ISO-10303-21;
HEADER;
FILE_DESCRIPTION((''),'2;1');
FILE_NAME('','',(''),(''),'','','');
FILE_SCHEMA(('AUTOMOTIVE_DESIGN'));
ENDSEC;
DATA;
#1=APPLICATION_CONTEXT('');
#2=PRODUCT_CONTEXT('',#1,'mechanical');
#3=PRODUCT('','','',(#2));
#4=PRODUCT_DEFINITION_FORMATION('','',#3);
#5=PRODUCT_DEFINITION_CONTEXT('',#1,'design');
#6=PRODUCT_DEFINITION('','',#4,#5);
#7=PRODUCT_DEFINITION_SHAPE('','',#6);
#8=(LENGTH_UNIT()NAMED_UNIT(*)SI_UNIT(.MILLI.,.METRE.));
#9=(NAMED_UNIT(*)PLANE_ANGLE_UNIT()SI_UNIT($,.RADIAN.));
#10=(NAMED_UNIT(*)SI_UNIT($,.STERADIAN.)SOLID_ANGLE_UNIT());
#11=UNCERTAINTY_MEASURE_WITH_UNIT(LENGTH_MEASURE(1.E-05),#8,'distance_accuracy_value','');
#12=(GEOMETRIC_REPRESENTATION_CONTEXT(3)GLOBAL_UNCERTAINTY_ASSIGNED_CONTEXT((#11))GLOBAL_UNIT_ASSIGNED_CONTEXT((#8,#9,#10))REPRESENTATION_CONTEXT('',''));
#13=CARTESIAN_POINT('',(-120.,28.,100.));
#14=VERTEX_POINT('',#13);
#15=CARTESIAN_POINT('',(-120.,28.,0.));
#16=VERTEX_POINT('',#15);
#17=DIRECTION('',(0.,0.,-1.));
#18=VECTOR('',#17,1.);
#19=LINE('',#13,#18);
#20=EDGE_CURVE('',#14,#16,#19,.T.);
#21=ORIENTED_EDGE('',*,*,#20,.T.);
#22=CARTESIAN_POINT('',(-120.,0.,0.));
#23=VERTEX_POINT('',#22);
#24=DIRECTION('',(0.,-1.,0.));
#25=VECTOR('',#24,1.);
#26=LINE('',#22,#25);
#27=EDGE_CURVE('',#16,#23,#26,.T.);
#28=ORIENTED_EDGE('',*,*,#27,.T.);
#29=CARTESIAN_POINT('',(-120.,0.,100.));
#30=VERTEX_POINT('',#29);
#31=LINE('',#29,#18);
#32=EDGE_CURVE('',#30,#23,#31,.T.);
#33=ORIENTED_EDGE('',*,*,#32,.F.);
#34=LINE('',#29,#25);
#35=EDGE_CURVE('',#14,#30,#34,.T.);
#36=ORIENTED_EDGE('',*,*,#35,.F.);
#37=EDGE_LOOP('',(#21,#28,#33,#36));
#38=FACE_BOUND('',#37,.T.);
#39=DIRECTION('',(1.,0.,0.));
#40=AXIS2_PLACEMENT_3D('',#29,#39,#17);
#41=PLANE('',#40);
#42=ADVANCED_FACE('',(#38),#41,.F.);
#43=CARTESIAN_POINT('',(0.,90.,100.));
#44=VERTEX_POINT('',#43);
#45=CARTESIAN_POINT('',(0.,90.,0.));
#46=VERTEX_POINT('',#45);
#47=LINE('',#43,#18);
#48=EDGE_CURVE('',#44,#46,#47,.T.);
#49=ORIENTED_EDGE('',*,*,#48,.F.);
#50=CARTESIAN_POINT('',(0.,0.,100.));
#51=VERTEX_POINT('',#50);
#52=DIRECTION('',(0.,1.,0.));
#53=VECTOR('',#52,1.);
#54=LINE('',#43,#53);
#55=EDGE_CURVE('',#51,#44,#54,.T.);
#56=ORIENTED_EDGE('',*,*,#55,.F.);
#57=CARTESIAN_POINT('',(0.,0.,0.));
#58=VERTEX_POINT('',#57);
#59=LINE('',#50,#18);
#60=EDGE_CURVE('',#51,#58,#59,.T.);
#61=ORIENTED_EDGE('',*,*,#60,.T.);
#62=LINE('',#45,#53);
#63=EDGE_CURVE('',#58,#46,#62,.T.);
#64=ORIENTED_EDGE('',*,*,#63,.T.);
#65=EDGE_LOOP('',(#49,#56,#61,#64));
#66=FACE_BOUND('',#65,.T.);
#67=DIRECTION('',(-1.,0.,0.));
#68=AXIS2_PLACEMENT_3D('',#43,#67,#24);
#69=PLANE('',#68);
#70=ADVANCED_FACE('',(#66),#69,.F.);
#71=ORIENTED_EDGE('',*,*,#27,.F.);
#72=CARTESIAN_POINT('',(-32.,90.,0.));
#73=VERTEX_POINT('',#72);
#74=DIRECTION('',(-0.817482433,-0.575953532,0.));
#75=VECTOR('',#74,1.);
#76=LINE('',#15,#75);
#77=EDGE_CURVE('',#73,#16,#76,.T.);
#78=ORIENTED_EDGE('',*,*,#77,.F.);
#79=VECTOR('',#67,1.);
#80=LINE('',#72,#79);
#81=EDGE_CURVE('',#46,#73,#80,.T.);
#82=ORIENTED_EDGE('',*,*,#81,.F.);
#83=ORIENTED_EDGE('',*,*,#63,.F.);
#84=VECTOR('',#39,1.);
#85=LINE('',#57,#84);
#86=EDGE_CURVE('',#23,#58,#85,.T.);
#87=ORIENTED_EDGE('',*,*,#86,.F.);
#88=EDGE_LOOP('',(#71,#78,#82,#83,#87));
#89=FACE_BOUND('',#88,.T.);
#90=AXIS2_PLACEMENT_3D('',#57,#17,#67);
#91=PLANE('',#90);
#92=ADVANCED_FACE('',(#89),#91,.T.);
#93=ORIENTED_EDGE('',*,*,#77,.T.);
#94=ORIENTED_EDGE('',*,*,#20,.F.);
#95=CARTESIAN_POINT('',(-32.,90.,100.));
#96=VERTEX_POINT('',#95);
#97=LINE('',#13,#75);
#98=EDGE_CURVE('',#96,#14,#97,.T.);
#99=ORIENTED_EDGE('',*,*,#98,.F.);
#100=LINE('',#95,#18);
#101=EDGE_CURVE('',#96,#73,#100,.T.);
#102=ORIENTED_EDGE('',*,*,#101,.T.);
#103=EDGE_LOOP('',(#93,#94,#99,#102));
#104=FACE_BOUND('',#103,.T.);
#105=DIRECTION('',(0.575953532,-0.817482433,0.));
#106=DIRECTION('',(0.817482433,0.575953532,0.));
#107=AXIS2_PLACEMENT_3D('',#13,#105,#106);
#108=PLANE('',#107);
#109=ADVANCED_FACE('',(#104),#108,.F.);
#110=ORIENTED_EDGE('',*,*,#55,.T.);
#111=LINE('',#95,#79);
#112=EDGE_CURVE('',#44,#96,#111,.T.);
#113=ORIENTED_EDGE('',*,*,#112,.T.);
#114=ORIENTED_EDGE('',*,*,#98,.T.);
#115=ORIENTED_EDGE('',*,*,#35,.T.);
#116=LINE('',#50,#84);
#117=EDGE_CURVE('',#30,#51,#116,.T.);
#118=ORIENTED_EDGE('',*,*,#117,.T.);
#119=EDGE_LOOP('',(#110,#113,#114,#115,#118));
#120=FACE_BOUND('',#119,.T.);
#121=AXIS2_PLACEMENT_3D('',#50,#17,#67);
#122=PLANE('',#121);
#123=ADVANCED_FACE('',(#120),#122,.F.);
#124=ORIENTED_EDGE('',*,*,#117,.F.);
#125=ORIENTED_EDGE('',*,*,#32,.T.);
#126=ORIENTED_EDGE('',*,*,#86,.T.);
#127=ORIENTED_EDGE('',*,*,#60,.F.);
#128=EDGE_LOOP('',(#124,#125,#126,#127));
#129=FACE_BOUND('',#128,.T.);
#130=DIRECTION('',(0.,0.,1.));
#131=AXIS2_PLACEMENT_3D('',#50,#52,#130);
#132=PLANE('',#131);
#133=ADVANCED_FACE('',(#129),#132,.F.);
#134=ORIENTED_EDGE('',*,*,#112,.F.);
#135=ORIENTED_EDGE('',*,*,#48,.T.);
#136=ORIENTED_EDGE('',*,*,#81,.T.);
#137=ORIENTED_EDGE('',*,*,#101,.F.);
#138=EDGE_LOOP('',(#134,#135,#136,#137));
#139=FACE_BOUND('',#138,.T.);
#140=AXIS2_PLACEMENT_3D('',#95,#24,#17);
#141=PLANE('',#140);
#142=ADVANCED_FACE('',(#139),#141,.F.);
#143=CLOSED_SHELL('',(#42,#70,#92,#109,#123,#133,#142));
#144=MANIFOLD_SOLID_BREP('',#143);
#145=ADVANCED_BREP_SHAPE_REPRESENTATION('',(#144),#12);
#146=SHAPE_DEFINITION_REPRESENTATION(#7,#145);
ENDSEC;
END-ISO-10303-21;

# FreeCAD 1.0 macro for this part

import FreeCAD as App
import Part
import Sketcher

V = App.Vector
Q = App.Units.Quantity

doc = App.newDocument("Part")
body = doc.addObject("PartDesign::Body", "Body")

sketch1 = body.newObject("Sketcher::SketchObject", "Sketch")
sketch1.AttachmentSupport = (doc.getObject("XY_Plane"), [""])
sketch1.MapMode = "FlatFace"
sketch1.addGeometry([
    Part.LineSegment(V(-120, 0, 0), V(0, 0, 0)),
    Part.LineSegment(V(0, 0, 0), V(0, 90, 0)),
    Part.LineSegment(V(0, 90, 0), V(-32, 90, 0)),
    Part.LineSegment(V(-32, 90, 0), V(-120, 28, 0)),
    Part.LineSegment(V(-120, 28, 0), V(-120, 0, 0)),
], False)
sketch1.addConstraint([
    Sketcher.Constraint("Coincident", 0, 2, 1, 1),
    Sketcher.Constraint("Coincident", 1, 2, 2, 1),
    Sketcher.Constraint("Coincident", 2, 2, 3, 1),
    Sketcher.Constraint("Coincident", 3, 2, 4, 1),
    Sketcher.Constraint("Coincident", 4, 2, 0, 1),
    Sketcher.Constraint("Horizontal", 0),
    Sketcher.Constraint("Vertical", 1),
    Sketcher.Constraint("Horizontal", 2),
    Sketcher.Constraint("Vertical", 4),
    Sketcher.Constraint("Coincident", 0, 2, -1, 1),
    Sketcher.Constraint("DistanceX", 0, 1, 0, 2, Q("120 mm")),
    Sketcher.Constraint("DistanceX", 2, 2, 2, 1, Q("32 mm")),
    Sketcher.Constraint("DistanceY", 1, 1, 1, 2, Q("90 mm")),
    Sketcher.Constraint("DistanceY", 4, 2, 4, 1, Q("28 mm")),
])
pad1 = body.newObject("PartDesign::Pad", "Pad")
pad1.Profile = sketch1
pad1.Length = 100

doc.recompute()
